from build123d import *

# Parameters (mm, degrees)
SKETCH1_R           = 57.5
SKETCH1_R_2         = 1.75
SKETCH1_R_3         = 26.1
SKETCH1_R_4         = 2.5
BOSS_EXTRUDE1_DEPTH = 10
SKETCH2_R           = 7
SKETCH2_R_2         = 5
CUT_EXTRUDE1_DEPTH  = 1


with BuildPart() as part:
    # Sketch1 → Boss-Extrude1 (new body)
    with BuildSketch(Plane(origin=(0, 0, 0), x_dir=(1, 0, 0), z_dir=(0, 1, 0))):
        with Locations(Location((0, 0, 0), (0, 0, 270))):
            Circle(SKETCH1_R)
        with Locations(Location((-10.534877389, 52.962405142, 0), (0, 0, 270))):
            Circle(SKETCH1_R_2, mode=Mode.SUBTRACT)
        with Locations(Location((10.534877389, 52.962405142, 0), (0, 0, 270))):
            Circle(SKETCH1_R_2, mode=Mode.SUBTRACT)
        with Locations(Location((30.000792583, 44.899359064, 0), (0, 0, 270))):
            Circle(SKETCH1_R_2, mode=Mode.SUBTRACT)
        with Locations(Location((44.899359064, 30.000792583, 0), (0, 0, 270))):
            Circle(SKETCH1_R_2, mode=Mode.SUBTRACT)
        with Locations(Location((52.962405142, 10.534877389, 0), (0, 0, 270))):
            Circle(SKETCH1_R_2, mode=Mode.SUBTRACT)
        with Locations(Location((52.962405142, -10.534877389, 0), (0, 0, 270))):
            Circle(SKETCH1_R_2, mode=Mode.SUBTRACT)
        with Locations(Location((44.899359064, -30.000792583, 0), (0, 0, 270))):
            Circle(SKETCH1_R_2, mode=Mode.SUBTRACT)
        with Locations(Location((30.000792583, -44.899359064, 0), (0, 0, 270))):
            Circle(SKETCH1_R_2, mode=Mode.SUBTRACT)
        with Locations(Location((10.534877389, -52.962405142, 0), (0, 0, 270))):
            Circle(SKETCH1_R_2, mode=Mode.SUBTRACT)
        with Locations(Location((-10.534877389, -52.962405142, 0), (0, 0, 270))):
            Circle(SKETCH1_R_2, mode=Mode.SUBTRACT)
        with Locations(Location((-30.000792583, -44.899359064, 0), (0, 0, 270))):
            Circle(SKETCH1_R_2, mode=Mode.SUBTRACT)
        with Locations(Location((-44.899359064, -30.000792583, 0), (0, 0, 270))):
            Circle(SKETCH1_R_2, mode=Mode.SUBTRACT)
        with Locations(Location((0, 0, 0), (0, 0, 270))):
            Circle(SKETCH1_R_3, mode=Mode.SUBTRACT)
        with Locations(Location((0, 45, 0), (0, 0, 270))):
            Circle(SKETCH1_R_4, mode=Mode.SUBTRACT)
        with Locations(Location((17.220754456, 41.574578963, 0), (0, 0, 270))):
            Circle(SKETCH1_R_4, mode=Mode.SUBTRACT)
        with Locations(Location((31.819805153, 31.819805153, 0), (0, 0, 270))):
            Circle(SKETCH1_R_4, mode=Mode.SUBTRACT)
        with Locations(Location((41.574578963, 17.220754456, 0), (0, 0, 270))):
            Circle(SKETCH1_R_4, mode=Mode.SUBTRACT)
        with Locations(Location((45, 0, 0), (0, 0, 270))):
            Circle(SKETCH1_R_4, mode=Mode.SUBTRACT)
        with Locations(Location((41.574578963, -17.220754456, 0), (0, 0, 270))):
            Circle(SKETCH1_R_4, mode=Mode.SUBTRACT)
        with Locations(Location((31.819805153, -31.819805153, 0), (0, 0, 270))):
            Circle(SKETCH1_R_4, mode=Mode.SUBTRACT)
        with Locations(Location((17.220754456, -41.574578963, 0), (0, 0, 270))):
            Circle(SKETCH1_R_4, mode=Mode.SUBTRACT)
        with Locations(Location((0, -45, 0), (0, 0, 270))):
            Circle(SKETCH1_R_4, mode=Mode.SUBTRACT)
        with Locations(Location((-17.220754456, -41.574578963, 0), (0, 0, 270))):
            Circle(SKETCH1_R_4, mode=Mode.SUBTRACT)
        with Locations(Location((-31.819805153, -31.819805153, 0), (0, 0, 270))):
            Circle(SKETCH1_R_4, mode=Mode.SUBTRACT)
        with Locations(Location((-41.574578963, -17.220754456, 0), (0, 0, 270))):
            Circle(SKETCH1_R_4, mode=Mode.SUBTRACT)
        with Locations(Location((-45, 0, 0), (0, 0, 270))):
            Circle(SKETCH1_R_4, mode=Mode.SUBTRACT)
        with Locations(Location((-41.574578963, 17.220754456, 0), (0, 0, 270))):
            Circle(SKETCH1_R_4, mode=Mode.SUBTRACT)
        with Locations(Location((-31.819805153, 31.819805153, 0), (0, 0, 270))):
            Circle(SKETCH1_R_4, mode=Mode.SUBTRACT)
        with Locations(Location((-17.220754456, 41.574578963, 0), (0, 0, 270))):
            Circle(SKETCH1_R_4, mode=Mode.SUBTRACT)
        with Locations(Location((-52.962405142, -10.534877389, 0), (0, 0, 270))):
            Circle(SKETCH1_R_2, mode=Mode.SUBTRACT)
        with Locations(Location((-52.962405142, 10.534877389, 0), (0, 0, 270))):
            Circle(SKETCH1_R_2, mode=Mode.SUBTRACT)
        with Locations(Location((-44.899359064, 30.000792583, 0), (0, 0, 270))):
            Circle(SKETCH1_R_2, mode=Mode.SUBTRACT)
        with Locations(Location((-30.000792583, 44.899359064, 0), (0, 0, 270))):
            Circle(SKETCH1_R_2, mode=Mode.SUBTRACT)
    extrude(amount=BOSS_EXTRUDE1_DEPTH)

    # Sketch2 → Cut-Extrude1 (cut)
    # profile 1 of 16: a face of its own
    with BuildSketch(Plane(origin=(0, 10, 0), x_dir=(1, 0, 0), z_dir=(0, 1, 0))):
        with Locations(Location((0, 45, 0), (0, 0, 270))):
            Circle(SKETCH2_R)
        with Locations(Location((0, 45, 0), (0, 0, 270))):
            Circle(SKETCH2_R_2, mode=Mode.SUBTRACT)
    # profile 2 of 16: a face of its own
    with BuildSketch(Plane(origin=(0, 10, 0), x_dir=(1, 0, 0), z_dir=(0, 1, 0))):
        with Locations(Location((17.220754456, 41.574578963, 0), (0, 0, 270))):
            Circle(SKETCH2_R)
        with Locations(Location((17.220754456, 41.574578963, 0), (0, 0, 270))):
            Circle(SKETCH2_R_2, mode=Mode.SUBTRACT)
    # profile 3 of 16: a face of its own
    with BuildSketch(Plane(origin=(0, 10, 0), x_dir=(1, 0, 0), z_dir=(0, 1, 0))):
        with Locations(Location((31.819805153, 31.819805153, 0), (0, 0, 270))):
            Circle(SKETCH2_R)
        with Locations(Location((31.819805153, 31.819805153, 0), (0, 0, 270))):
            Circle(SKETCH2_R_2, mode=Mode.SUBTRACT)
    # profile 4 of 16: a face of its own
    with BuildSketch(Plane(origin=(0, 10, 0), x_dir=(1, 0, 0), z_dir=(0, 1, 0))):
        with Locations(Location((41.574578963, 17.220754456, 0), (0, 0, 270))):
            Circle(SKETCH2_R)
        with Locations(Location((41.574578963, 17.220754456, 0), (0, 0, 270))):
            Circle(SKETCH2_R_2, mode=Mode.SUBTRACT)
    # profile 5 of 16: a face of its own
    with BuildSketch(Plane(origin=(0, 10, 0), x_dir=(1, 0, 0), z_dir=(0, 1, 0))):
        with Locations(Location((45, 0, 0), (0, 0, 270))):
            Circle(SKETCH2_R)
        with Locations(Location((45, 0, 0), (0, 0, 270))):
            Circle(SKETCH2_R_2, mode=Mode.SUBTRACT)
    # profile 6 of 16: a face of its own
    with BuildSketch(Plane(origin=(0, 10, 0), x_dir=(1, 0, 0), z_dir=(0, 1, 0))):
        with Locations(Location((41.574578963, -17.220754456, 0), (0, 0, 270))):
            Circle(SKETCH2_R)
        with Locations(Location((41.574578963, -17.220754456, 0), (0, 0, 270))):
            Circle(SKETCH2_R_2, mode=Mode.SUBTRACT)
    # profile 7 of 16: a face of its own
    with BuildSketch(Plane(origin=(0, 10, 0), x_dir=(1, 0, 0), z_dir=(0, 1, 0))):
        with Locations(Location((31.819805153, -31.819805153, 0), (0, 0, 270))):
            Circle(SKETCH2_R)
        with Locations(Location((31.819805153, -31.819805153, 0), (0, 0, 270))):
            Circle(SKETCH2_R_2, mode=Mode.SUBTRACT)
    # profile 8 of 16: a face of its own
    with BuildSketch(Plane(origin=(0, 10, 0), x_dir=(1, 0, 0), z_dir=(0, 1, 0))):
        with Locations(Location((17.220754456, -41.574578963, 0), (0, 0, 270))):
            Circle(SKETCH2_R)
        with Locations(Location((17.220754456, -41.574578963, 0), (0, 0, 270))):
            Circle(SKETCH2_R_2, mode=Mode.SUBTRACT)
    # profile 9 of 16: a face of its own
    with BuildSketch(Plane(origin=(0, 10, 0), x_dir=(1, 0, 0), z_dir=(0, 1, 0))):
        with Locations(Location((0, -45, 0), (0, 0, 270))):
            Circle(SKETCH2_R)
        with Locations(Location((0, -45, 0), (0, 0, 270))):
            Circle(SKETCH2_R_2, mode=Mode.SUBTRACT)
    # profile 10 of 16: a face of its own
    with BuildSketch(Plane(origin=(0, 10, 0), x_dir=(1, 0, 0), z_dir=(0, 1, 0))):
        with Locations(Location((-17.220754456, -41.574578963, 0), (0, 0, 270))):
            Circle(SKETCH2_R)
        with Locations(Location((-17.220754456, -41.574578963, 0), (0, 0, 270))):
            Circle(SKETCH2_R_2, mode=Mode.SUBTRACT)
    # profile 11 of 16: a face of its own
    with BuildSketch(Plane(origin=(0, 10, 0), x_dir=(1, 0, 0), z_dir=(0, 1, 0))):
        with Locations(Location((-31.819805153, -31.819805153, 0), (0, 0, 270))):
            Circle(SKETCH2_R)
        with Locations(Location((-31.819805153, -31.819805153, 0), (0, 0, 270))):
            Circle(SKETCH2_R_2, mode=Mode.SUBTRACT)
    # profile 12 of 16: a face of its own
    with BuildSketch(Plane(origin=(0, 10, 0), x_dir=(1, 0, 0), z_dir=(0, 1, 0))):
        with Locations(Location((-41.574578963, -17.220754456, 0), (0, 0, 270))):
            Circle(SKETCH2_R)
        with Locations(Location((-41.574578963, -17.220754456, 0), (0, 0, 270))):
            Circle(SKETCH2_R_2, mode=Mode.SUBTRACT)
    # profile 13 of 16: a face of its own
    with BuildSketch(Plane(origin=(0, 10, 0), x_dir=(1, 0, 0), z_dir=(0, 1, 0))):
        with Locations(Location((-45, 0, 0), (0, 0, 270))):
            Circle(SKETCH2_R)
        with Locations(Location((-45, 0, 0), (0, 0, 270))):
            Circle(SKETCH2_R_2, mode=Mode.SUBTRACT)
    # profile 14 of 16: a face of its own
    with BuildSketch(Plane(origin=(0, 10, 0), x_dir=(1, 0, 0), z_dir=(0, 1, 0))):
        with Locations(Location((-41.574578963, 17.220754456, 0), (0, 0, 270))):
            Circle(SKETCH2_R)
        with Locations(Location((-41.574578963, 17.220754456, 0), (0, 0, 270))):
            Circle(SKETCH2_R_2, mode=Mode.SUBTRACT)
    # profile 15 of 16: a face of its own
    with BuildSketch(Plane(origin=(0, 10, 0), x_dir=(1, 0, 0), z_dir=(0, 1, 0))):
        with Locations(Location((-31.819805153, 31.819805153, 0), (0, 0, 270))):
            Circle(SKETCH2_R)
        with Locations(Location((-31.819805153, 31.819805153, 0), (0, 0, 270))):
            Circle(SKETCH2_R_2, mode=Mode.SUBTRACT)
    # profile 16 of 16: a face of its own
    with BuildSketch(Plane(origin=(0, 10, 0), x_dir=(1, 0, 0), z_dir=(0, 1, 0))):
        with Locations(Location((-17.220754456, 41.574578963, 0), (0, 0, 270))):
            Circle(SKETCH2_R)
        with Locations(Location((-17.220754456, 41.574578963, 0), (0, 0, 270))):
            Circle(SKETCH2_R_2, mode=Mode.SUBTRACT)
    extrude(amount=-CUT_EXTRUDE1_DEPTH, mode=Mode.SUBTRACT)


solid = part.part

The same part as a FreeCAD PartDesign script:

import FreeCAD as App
import Part
import Sketcher

doc = App.newDocument("Part")
body = doc.addObject("PartDesign::Body", "Body")

# Sketch on XZ plane
sketch1 = body.newObject("Sketcher::SketchObject", "Sketch")
sketch1.AttachmentSupport = (doc.getObject("XZ_Plane"), [""])
sketch1.MapMode = "FlatFace"
sketch1.addGeometry([
    Part.Circle(App.Vector(0, 0, 0), App.Vector(0, 0, 1), 57.5),  # 0
    Part.Circle(App.Vector(-44.9, -30, 0), App.Vector(0, 0, 1), 1.8),  # 1
    Part.Circle(App.Vector(-30, -44.9, 0), App.Vector(0, 0, 1), 1.8),  # 2
    Part.Circle(App.Vector(-31.8, -31.8, 0), App.Vector(0, 0, 1), 2.5),  # 3
    Part.Circle(App.Vector(-41.6, -17.2, 0), App.Vector(0, 0, 1), 2.5),  # 4
    Part.Circle(App.Vector(-53, -10.5, 0), App.Vector(0, 0, 1), 1.8),  # 5
    Part.Circle(App.Vector(-17.2, -41.6, 0), App.Vector(0, 0, 1), 2.5),  # 6
    Part.Circle(App.Vector(-10.5, -53, 0), App.Vector(0, 0, 1), 1.8),  # 7
    Part.Circle(App.Vector(0, -45, 0), App.Vector(0, 0, 1), 2.5),  # 8
    Part.Circle(App.Vector(-53, 10.5, 0), App.Vector(0, 0, 1), 1.8),  # 9
    Part.Circle(App.Vector(-45, 0, 0), App.Vector(0, 0, 1), 2.5),  # 10
    Part.Circle(App.Vector(-41.6, 17.2, 0), App.Vector(0, 0, 1), 2.5),  # 11
    Part.Circle(App.Vector(-44.9, 30, 0), App.Vector(0, 0, 1), 1.8),  # 12
    Part.Circle(App.Vector(-31.8, 31.8, 0), App.Vector(0, 0, 1), 2.5),  # 13
    Part.Circle(App.Vector(-30, 44.9, 0), App.Vector(0, 0, 1), 1.8),  # 14
    Part.Circle(App.Vector(-17.2, 41.6, 0), App.Vector(0, 0, 1), 2.5),  # 15
    Part.Circle(App.Vector(-10.5, 53, 0), App.Vector(0, 0, 1), 1.8),  # 16
    Part.Circle(App.Vector(10.5, -53, 0), App.Vector(0, 0, 1), 1.8),  # 17
    Part.Circle(App.Vector(17.2, -41.6, 0), App.Vector(0, 0, 1), 2.5),  # 18
    Part.Circle(App.Vector(30, -44.9, 0), App.Vector(0, 0, 1), 1.8),  # 19
    Part.Circle(App.Vector(31.8, -31.8, 0), App.Vector(0, 0, 1), 2.5),  # 20
    Part.Circle(App.Vector(44.9, -30, 0), App.Vector(0, 0, 1), 1.8),  # 21
    Part.Circle(App.Vector(41.6, -17.2, 0), App.Vector(0, 0, 1), 2.5),  # 22
    Part.Circle(App.Vector(45, 0, 0), App.Vector(0, 0, 1), 2.5),  # 23
    Part.Circle(App.Vector(53, -10.5, 0), App.Vector(0, 0, 1), 1.8),  # 24
    Part.Circle(App.Vector(0, 0, 0), App.Vector(0, 0, 1), 26.1),  # 25
    Part.Circle(App.Vector(0, 45, 0), App.Vector(0, 0, 1), 2.5),  # 26
    Part.Circle(App.Vector(10.5, 53, 0), App.Vector(0, 0, 1), 1.8),  # 27
    Part.Circle(App.Vector(17.2, 41.6, 0), App.Vector(0, 0, 1), 2.5),  # 28
    Part.Circle(App.Vector(53, 10.5, 0), App.Vector(0, 0, 1), 1.8),  # 29
    Part.Circle(App.Vector(41.6, 17.2, 0), App.Vector(0, 0, 1), 2.5),  # 30
    Part.Circle(App.Vector(31.8, 31.8, 0), App.Vector(0, 0, 1), 2.5),  # 31
    Part.Circle(App.Vector(30, 44.9, 0), App.Vector(0, 0, 1), 1.8),  # 32
    Part.Circle(App.Vector(44.9, 30, 0), App.Vector(0, 0, 1), 1.8),  # 33
], False)
sketch1.addConstraint([
    Sketcher.Constraint("Coincident", 0, 3, -1, 1),
    Sketcher.Constraint("Coincident", 25, 3, -1, 1),
    Sketcher.Constraint("Equal", 1, 2),
    Sketcher.Constraint("Equal", 3, 4),
    Sketcher.Constraint("Equal", 2, 5),
    Sketcher.Constraint("Equal", 4, 6),
    Sketcher.Constraint("Equal", 5, 7),
    Sketcher.Constraint("Equal", 6, 8),
    Sketcher.Constraint("Equal", 7, 9),
    Sketcher.Constraint("Equal", 8, 10),
    Sketcher.Constraint("Equal", 10, 11),
    Sketcher.Constraint("Equal", 9, 12),
    Sketcher.Constraint("Equal", 11, 13),
    Sketcher.Constraint("Equal", 12, 14),
    Sketcher.Constraint("Equal", 13, 15),
    Sketcher.Constraint("Equal", 14, 16),
    Sketcher.Constraint("Equal", 16, 17),
    Sketcher.Constraint("Equal", 15, 18),
    Sketcher.Constraint("Equal", 17, 19),
    Sketcher.Constraint("Equal", 18, 20),
    Sketcher.Constraint("Equal", 19, 21),
    Sketcher.Constraint("Equal", 20, 22),
    Sketcher.Constraint("Equal", 22, 23),
    Sketcher.Constraint("Equal", 21, 24),
    Sketcher.Constraint("Equal", 23, 26),
    Sketcher.Constraint("Equal", 24, 27),
    Sketcher.Constraint("Equal", 26, 28),
    Sketcher.Constraint("Equal", 27, 29),
    Sketcher.Constraint("Equal", 28, 30),
    Sketcher.Constraint("Equal", 30, 31),
    Sketcher.Constraint("Equal", 29, 32),
    Sketcher.Constraint("Equal", 32, 33),
    Sketcher.Constraint("Symmetric", 16, 3, 17, 3, -1, 1),
    Sketcher.Constraint("Symmetric", 15, 3, 18, 3, -1, 1),
    Sketcher.Constraint("Symmetric", 14, 3, 19, 3, -1, 1),
    Sketcher.Constraint("Symmetric", 13, 3, 20, 3, -1, 1),
    Sketcher.Constraint("Symmetric", 12, 3, 21, 3, -1, 1),
    Sketcher.Constraint("Symmetric", 11, 3, 22, 3, -1, 1),
    Sketcher.Constraint("Symmetric", 10, 3, 23, 3, -1, 1),
    Sketcher.Constraint("Symmetric", 9, 3, 24, 3, -1, 1),
    Sketcher.Constraint("Symmetric", 8, 3, 26, 3, -1, 1),
    Sketcher.Constraint("Symmetric", 7, 3, 27, 3, -1, 1),
    Sketcher.Constraint("Symmetric", 6, 3, 28, 3, -1, 1),
    Sketcher.Constraint("Symmetric", 5, 3, 29, 3, -1, 1),
    Sketcher.Constraint("Symmetric", 4, 3, 30, 3, -1, 1),
    Sketcher.Constraint("Symmetric", 3, 3, 31, 3, -1, 1),
    Sketcher.Constraint("Symmetric", 2, 3, 32, 3, -1, 1),
    Sketcher.Constraint("Symmetric", 1, 3, 33, 3, -1, 1),
    Sketcher.Constraint("Symmetric", 7, 3, 17, 3, -2),
    Sketcher.Constraint("Symmetric", 6, 3, 18, 3, -2),
    Sketcher.Constraint("Symmetric", 2, 3, 19, 3, -2),
    Sketcher.Constraint("Symmetric", 3, 3, 20, 3, -2),
    Sketcher.Constraint("Symmetric", 1, 3, 21, 3, -2),
    Sketcher.Constraint("Symmetric", 4, 3, 22, 3, -2),
    Sketcher.Constraint("Symmetric", 5, 3, 24, 3, -2),
    Sketcher.Constraint("PointOnObject", 8, 3, -2),
    Sketcher.Constraint("PointOnObject", 10, 3, -1),
    Sketcher.Constraint("Diameter", 0, 115.0),
    Sketcher.Constraint("Diameter", 3, 5.0),
    Sketcher.Constraint("Diameter", 1, 3.5),
    Sketcher.Constraint("Diameter", 25, 52.2),
    Sketcher.Constraint("DistanceY", 8, 3, -1, 1, 45.0),
    Sketcher.Constraint("DistanceX", 10, 3, -1, 1, 45.0),
    Sketcher.Constraint("DistanceX", 5, 3, 3, 3, 21.1426),
    Sketcher.Constraint("DistanceY", 7, 3, 3, 3, 21.1426),
    Sketcher.Constraint("DistanceX", 4, 3, 7, 3, 31.039702),
    Sketcher.Constraint("DistanceX", 1, 3, -1, 1, 44.899359),
    Sketcher.Constraint("DistanceY", 2, 3, -1, 1, 44.899359),
    Sketcher.Constraint("DistanceX", 4, 3, -1, 1, 41.574579),
    Sketcher.Constraint("DistanceY", 6, 3, -1, 1, 41.574579),
    Sketcher.Constraint("DistanceY", 1, 3, 4, 3, 12.780038),
    Sketcher.Constraint("DistanceY", 3, 3, 4, 3, 14.599051),
    Sketcher.Constraint("DistanceY", 2, 3, 5, 3, 34.364482),
    Sketcher.Constraint("DistanceX", 2, 3, 6, 3, 12.780038),
    Sketcher.Constraint("DistanceX", 3, 3, 6, 3, 14.599051),
    Sketcher.Constraint("DistanceY", 4, 3, 9, 3, 27.755632),
    Sketcher.Constraint("DistanceX", 6, 3, 17, 3, 27.755632),
])
pad1 = body.newObject("PartDesign::Pad", "Pad")
pad1.Profile = sketch1
pad1.Length = 10
pad1.Reversed = True

# Sketch on XZ plane
sketch2 = body.newObject("Sketcher::SketchObject", "Sketch001")
sketch2.AttachmentSupport = (doc.getObject("XZ_Plane"), [""])
sketch2.MapMode = "FlatFace"
sketch2.AttachmentOffset = App.Placement(App.Vector(0, 0, -10), App.Rotation())
sketch2.addGeometry([
    Part.Circle(App.Vector(0, -45, 0), App.Vector(0, 0, 1), 7),  # 0
    Part.Circle(App.Vector(0, -45, 0), App.Vector(0, 0, 1), 5),  # 1
    Part.Circle(App.Vector(17, -42, 0), App.Vector(0, 0, 1), 7),  # 2
    Part.Circle(App.Vector(17, -42, 0), App.Vector(0, 0, 1), 5),  # 3
    Part.Circle(App.Vector(32, -32, 0), App.Vector(0, 0, 1), 7),  # 4
    Part.Circle(App.Vector(32, -32, 0), App.Vector(0, 0, 1), 5),  # 5
    Part.Circle(App.Vector(42, -17, 0), App.Vector(0, 0, 1), 7),  # 6
    Part.Circle(App.Vector(42, -17, 0), App.Vector(0, 0, 1), 5),  # 7
    Part.Circle(App.Vector(45, 0, 0), App.Vector(0, 0, 1), 7),  # 8
    Part.Circle(App.Vector(45, 0, 0), App.Vector(0, 0, 1), 5),  # 9
    Part.Circle(App.Vector(42, 17, 0), App.Vector(0, 0, 1), 7),  # 10
    Part.Circle(App.Vector(42, 17, 0), App.Vector(0, 0, 1), 5),  # 11
    Part.Circle(App.Vector(32, 32, 0), App.Vector(0, 0, 1), 7),  # 12
    Part.Circle(App.Vector(32, 32, 0), App.Vector(0, 0, 1), 5),  # 13
    Part.Circle(App.Vector(17, 42, 0), App.Vector(0, 0, 1), 7),  # 14
    Part.Circle(App.Vector(17, 42, 0), App.Vector(0, 0, 1), 5),  # 15
    Part.Circle(App.Vector(0, 45, 0), App.Vector(0, 0, 1), 7),  # 16
    Part.Circle(App.Vector(0, 45, 0), App.Vector(0, 0, 1), 5),  # 17
    Part.Circle(App.Vector(-17, 42, 0), App.Vector(0, 0, 1), 7),  # 18
    Part.Circle(App.Vector(-17, 42, 0), App.Vector(0, 0, 1), 5),  # 19
    Part.Circle(App.Vector(-32, 32, 0), App.Vector(0, 0, 1), 7),  # 20
    Part.Circle(App.Vector(-32, 32, 0), App.Vector(0, 0, 1), 5),  # 21
    Part.Circle(App.Vector(-42, 17, 0), App.Vector(0, 0, 1), 7),  # 22
    Part.Circle(App.Vector(-42, 17, 0), App.Vector(0, 0, 1), 5),  # 23
    Part.Circle(App.Vector(-45, 0, 0), App.Vector(0, 0, 1), 7),  # 24
    Part.Circle(App.Vector(-45, 0, 0), App.Vector(0, 0, 1), 5),  # 25
    Part.Circle(App.Vector(-42, -17, 0), App.Vector(0, 0, 1), 7),  # 26
    Part.Circle(App.Vector(-42, -17, 0), App.Vector(0, 0, 1), 5),  # 27
    Part.Circle(App.Vector(-32, -32, 0), App.Vector(0, 0, 1), 7),  # 28
    Part.Circle(App.Vector(-32, -32, 0), App.Vector(0, 0, 1), 5),  # 29
    Part.Circle(App.Vector(-17, -42, 0), App.Vector(0, 0, 1), 7),  # 30
    Part.Circle(App.Vector(-17, -42, 0), App.Vector(0, 0, 1), 5),  # 31
], False)
sketch2.addConstraint([
    Sketcher.Constraint("Coincident", 1, 3, 0, 3),
    Sketcher.Constraint("Coincident", 3, 3, 2, 3),
    Sketcher.Constraint("Coincident", 5, 3, 4, 3),
    Sketcher.Constraint("Coincident", 7, 3, 6, 3),
    Sketcher.Constraint("Coincident", 9, 3, 8, 3),
    Sketcher.Constraint("Coincident", 11, 3, 10, 3),
    Sketcher.Constraint("Coincident", 13, 3, 12, 3),
    Sketcher.Constraint("Coincident", 15, 3, 14, 3),
    Sketcher.Constraint("Coincident", 17, 3, 16, 3),
    Sketcher.Constraint("Coincident", 19, 3, 18, 3),
    Sketcher.Constraint("Coincident", 21, 3, 20, 3),
    Sketcher.Constraint("Coincident", 23, 3, 22, 3),
    Sketcher.Constraint("Coincident", 25, 3, 24, 3),
    Sketcher.Constraint("Coincident", 27, 3, 26, 3),
    Sketcher.Constraint("Coincident", 29, 3, 28, 3),
    Sketcher.Constraint("Coincident", 31, 3, 30, 3),
    Sketcher.Constraint("Equal", 0, 2),
    Sketcher.Constraint("Equal", 1, 3),
    Sketcher.Constraint("Equal", 2, 4),
    Sketcher.Constraint("Equal", 3, 5),
    Sketcher.Constraint("Equal", 4, 6),
    Sketcher.Constraint("Equal", 5, 7),
    Sketcher.Constraint("Equal", 6, 8),
    Sketcher.Constraint("Equal", 7, 9),
    Sketcher.Constraint("Equal", 8, 10),
    Sketcher.Constraint("Equal", 9, 11),
    Sketcher.Constraint("Equal", 10, 12),
    Sketcher.Constraint("Equal", 11, 13),
    Sketcher.Constraint("Equal", 12, 14),
    Sketcher.Constraint("Equal", 13, 15),
    Sketcher.Constraint("Equal", 14, 16),
    Sketcher.Constraint("Equal", 15, 17),
    Sketcher.Constraint("Equal", 16, 18),
    Sketcher.Constraint("Equal", 17, 19),
    Sketcher.Constraint("Equal", 18, 20),
    Sketcher.Constraint("Equal", 19, 21),
    Sketcher.Constraint("Equal", 20, 22),
    Sketcher.Constraint("Equal", 21, 23),
    Sketcher.Constraint("Equal", 22, 24),
    Sketcher.Constraint("Equal", 23, 25),
    Sketcher.Constraint("Equal", 24, 26),
    Sketcher.Constraint("Equal", 25, 27),
    Sketcher.Constraint("Equal", 26, 28),
    Sketcher.Constraint("Equal", 27, 29),
    Sketcher.Constraint("Equal", 28, 30),
    Sketcher.Constraint("Equal", 29, 31),
    Sketcher.Constraint("Symmetric", 0, 3, 16, 3, -1, 1),
    Sketcher.Constraint("Symmetric", 2, 3, 18, 3, -1, 1),
    Sketcher.Constraint("Symmetric", 4, 3, 20, 3, -1, 1),
    Sketcher.Constraint("Symmetric", 6, 3, 22, 3, -1, 1),
    Sketcher.Constraint("Symmetric", 8, 3, 24, 3, -1, 1),
    Sketcher.Constraint("Symmetric", 10, 3, 26, 3, -1, 1),
    Sketcher.Constraint("Symmetric", 12, 3, 28, 3, -1, 1),
    Sketcher.Constraint("Symmetric", 14, 3, 30, 3, -1, 1),
    Sketcher.Constraint("Symmetric", 14, 3, 18, 3, -2),
    Sketcher.Constraint("Symmetric", 12, 3, 20, 3, -2),
    Sketcher.Constraint("Symmetric", 10, 3, 22, 3, -2),
    Sketcher.Constraint("PointOnObject", 0, 3, -2),
    Sketcher.Constraint("PointOnObject", 8, 3, -1),
    Sketcher.Constraint("Diameter", 0, 14.0),
    Sketcher.Constraint("Diameter", 1, 10.0),
    Sketcher.Constraint("DistanceY", 0, 3, -1, 1, 45.0),
    Sketcher.Constraint("DistanceX", -1, 1, 8, 3, 45.0),
    Sketcher.Constraint("DistanceY", 2, 3, -1, 1, 41.574579),
    Sketcher.Constraint("DistanceX", -1, 1, 6, 3, 41.574579),
    Sketcher.Constraint("DistanceX", 2, 3, 4, 3, 14.599051),
    Sketcher.Constraint("DistanceY", 4, 3, 6, 3, 14.599051),
    Sketcher.Constraint("DistanceY", 6, 3, 10, 3, 34.441509),
    Sketcher.Constraint("DistanceX", 18, 3, 14, 3, 34.441509),
])
pocket1 = body.newObject("PartDesign::Pocket", "Pocket")
pocket1.Profile = sketch2
pocket1.Length = 1
pocket1.Reversed = True

doc.recompute()
